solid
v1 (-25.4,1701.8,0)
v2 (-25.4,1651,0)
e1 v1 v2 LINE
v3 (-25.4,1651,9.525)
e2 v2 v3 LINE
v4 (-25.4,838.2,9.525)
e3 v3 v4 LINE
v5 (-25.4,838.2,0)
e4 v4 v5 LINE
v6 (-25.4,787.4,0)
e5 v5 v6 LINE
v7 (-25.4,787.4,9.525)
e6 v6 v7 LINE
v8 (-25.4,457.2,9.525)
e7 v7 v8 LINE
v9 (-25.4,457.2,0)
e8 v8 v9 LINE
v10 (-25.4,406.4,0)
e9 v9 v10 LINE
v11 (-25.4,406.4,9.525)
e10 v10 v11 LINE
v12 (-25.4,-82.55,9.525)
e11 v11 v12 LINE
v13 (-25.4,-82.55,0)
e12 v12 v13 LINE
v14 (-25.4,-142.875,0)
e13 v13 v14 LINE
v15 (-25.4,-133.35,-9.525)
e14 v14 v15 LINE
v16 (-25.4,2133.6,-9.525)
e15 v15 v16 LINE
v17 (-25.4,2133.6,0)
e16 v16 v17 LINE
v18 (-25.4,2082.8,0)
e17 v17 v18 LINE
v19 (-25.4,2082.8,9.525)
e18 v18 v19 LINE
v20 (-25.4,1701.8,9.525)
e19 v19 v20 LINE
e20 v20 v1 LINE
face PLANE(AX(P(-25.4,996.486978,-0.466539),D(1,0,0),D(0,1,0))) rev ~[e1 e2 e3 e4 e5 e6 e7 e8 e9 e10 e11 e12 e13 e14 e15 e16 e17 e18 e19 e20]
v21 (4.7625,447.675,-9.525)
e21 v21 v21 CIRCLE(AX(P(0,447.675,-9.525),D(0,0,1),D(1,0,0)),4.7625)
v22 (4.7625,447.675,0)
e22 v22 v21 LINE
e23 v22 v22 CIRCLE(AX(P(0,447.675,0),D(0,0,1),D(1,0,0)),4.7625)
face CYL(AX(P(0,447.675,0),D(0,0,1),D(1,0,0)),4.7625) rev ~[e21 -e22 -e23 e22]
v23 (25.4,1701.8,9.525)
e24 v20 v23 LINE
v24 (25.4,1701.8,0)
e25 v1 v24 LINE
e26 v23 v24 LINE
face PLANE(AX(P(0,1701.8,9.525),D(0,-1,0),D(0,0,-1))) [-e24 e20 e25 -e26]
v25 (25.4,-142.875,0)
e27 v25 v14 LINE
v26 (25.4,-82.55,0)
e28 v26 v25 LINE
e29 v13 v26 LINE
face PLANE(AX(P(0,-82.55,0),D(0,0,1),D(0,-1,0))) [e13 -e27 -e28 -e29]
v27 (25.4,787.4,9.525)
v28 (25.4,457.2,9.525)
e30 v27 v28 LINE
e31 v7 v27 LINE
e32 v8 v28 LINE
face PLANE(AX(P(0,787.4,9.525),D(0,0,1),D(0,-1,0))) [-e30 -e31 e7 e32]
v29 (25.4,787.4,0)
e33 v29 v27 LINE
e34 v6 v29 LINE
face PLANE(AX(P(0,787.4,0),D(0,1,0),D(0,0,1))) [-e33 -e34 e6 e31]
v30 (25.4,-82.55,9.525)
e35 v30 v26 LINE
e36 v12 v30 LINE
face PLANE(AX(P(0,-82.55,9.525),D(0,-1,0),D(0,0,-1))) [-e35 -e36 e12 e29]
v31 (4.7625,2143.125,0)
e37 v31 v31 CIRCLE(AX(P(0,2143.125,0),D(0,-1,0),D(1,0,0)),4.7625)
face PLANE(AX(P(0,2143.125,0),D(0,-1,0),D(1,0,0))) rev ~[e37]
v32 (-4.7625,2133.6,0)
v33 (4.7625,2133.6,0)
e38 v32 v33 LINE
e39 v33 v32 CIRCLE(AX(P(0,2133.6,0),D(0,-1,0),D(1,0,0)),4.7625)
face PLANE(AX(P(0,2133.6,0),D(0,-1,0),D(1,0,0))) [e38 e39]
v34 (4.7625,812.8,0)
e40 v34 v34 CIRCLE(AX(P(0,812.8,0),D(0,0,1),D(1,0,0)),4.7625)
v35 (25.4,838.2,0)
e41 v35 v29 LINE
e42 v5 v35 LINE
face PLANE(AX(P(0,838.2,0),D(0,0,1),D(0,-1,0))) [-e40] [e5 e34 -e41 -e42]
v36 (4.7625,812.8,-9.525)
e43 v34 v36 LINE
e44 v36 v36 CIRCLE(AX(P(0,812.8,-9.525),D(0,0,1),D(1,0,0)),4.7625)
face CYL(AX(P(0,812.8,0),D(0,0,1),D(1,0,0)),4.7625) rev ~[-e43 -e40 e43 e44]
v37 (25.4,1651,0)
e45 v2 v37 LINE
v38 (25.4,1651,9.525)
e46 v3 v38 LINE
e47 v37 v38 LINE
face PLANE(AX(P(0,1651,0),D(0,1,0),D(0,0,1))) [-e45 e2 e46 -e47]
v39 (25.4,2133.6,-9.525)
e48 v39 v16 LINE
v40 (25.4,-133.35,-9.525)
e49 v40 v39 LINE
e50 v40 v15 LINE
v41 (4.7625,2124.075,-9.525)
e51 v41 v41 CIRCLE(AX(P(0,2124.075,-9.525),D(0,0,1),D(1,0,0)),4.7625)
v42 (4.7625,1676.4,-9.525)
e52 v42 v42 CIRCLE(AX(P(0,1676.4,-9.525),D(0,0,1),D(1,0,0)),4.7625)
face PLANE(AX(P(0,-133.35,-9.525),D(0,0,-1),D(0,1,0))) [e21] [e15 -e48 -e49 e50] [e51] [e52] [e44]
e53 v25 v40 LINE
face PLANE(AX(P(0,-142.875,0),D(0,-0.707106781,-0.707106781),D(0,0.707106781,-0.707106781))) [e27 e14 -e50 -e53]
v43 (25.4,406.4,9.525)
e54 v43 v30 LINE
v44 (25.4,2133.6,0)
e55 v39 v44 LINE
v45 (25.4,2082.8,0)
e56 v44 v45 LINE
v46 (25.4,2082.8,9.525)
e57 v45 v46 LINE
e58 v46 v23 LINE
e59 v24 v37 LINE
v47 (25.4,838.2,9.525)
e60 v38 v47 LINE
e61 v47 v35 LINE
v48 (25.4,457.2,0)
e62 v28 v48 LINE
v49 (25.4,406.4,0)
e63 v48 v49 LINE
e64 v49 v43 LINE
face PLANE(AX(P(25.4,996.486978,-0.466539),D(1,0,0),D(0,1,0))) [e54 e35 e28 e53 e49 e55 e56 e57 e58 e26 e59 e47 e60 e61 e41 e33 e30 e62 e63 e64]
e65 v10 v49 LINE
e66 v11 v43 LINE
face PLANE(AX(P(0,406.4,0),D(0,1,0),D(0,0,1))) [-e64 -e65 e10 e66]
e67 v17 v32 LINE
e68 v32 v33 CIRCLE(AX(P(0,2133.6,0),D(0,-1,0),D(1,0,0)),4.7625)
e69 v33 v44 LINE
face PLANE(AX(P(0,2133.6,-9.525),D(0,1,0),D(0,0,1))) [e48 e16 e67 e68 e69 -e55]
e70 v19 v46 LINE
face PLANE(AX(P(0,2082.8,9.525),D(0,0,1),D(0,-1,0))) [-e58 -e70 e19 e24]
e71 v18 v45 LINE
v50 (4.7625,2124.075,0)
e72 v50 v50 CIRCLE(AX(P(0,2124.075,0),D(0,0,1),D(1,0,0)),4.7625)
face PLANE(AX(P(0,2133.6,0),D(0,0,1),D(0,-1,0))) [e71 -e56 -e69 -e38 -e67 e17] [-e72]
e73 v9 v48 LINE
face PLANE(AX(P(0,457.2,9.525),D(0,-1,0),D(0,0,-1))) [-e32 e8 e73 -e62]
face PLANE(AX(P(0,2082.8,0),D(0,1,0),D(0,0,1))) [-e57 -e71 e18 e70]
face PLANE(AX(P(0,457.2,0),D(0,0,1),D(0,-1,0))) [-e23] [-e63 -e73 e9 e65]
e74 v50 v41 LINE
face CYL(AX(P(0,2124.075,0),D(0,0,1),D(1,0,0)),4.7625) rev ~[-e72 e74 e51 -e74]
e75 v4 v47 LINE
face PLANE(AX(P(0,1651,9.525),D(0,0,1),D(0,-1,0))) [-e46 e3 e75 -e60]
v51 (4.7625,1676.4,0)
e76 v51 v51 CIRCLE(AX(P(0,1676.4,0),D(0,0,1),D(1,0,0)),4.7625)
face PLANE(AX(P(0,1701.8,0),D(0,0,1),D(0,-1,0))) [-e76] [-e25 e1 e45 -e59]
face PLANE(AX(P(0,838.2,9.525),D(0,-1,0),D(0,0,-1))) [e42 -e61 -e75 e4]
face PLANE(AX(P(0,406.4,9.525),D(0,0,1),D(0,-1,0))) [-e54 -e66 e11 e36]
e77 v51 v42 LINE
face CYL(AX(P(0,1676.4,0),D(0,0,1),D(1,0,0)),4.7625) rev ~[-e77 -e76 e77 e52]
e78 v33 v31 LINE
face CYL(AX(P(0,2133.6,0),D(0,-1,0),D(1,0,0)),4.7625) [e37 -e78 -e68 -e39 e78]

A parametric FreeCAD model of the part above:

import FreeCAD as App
import Part
import Sketcher
Q = App.Units.Quantity

doc = App.newDocument("Part")
body = doc.addObject("PartDesign::Body", "Body")

# Sketch on YZ plane
sketch1 = body.newObject("Sketcher::SketchObject", "Sketch")
sketch1.AttachmentSupport = (doc.getObject("YZ_Plane"), [""])
sketch1.MapMode = "FlatFace"
sketch1.addGeometry([
    Part.LineSegment(App.Vector(2133.6, -9.525, 0), App.Vector(2133.6, 0, 0)),  # 0
    Part.LineSegment(App.Vector(2133.6, 0, 0), App.Vector(2082.8, 0, 0)),  # 1
    Part.LineSegment(App.Vector(2082.8, 0, 0), App.Vector(2082.8, 9.525, 0)),  # 2
    Part.LineSegment(App.Vector(2082.8, 9.525, 0), App.Vector(1701.8, 9.525, 0)),  # 3
    Part.LineSegment(App.Vector(1701.8, 9.525, 0), App.Vector(1701.8, 0, 0)),  # 4
    Part.LineSegment(App.Vector(1701.8, 0, 0), App.Vector(1651, 0, 0)),  # 5
    Part.LineSegment(App.Vector(1651, 0, 0), App.Vector(1651, 9.525, 0)),  # 6
    Part.LineSegment(App.Vector(1651, 9.525, 0), App.Vector(838.2, 9.525, 0)),  # 7
    Part.LineSegment(App.Vector(838.2, 9.525, 0), App.Vector(838.2, 0, 0)),  # 8
    Part.LineSegment(App.Vector(838.2, 0, 0), App.Vector(787.4, 0, 0)),  # 9
    Part.LineSegment(App.Vector(787.4, 0, 0), App.Vector(787.4, 9.525, 0)),  # 10
    Part.LineSegment(App.Vector(787.4, 9.525, 0), App.Vector(457.2, 9.525, 0)),  # 11
    Part.LineSegment(App.Vector(457.2, 9.525, 0), App.Vector(457.2, 0, 0)),  # 12
    Part.LineSegment(App.Vector(457.2, 0, 0), App.Vector(406.4, 0, 0)),  # 13
    Part.LineSegment(App.Vector(406.4, 0, 0), App.Vector(406.4, 9.525, 0)),  # 14
    Part.LineSegment(App.Vector(406.4, 9.525, 0), App.Vector(-82.55, 9.525, 0)),  # 15
    Part.LineSegment(App.Vector(-82.55, 9.525, 0), App.Vector(-82.55, 0, 0)),  # 16
    Part.LineSegment(App.Vector(-82.55, 0, 0), App.Vector(-142.875, 0, 0)),  # 17
    Part.LineSegment(App.Vector(-142.875, 0, 0), App.Vector(-133.35, -9.525, 0)),  # 18
    Part.LineSegment(App.Vector(-133.35, -9.525, 0), App.Vector(2133.6, -9.525, 0)),  # 19
], False)
sketch1.addConstraint([
    Sketcher.Constraint("Coincident", 0, 2, 1, 1),
    Sketcher.Constraint("Coincident", 1, 2, 2, 1),
    Sketcher.Constraint("Coincident", 2, 2, 3, 1),
    Sketcher.Constraint("Coincident", 3, 2, 4, 1),
    Sketcher.Constraint("Coincident", 4, 2, 5, 1),
    Sketcher.Constraint("Coincident", 5, 2, 6, 1),
    Sketcher.Constraint("Coincident", 6, 2, 7, 1),
    Sketcher.Constraint("Coincident", 7, 2, 8, 1),
    Sketcher.Constraint("Coincident", 8, 2, 9, 1),
    Sketcher.Constraint("Coincident", 9, 2, 10, 1),
    Sketcher.Constraint("Coincident", 10, 2, 11, 1),
    Sketcher.Constraint("Coincident", 11, 2, 12, 1),
    Sketcher.Constraint("Coincident", 12, 2, 13, 1),
    Sketcher.Constraint("Coincident", 13, 2, 14, 1),
    Sketcher.Constraint("Coincident", 14, 2, 15, 1),
    Sketcher.Constraint("Coincident", 15, 2, 16, 1),
    Sketcher.Constraint("Coincident", 16, 2, 17, 1),
    Sketcher.Constraint("Coincident", 17, 2, 18, 1),
    Sketcher.Constraint("Coincident", 18, 2, 19, 1),
    Sketcher.Constraint("Coincident", 19, 2, 0, 1),
    Sketcher.Constraint("Vertical", 0),
    Sketcher.Constraint("Horizontal", 1),
    Sketcher.Constraint("Vertical", 2),
    Sketcher.Constraint("Horizontal", 3),
    Sketcher.Constraint("Vertical", 4),
    Sketcher.Constraint("Horizontal", 5),
    Sketcher.Constraint("Vertical", 6),
    Sketcher.Constraint("Horizontal", 7),
    Sketcher.Constraint("Vertical", 8),
    Sketcher.Constraint("Horizontal", 9),
    Sketcher.Constraint("Vertical", 10),
    Sketcher.Constraint("Horizontal", 11),
    Sketcher.Constraint("Vertical", 12),
    Sketcher.Constraint("Horizontal", 13),
    Sketcher.Constraint("Vertical", 14),
    Sketcher.Constraint("Horizontal", 15),
    Sketcher.Constraint("Vertical", 16),
    Sketcher.Constraint("Horizontal", 17),
    Sketcher.Constraint("Horizontal", 19),
    Sketcher.Constraint("PointOnObject", 0, 2, -1),
    Sketcher.Constraint("PointOnObject", 4, 2, -1),
    Sketcher.Constraint("PointOnObject", 8, 2, -1),
    Sketcher.Constraint("PointOnObject", 12, 2, -1),
    Sketcher.Constraint("PointOnObject", 16, 2, -1),
    Sketcher.Constraint("Horizontal", 3, 2, 6, 2),
    Sketcher.Constraint("Horizontal", 7, 2, 10, 2),
    Sketcher.Constraint("Horizontal", 11, 2, 14, 2),
    Sketcher.Constraint("Equal", 1, 5),
    Sketcher.Constraint("Equal", 5, 9),
    Sketcher.Constraint("Equal", 9, 13),
    Sketcher.Constraint("Equal", 0, 2),
    Sketcher.Constraint("DistanceX", 1, 2, 1, 1, Q("2 in")),
    Sketcher.Constraint("DistanceX", 3, 2, 3, 1, Q("15 in")),
    Sketcher.Constraint("DistanceX", 7, 2, 7, 1, Q("32 in")),
    Sketcher.Constraint("DistanceX", 11, 2, 11, 1, Q("13 in")),
    Sketcher.Constraint("DistanceX", -1, 1, 0, 2, Q("84 in")),
    Sketcher.Constraint("Angle", 18, Q("-45 deg")),
    Sketcher.Constraint("DistanceX", 18, 2, 16, 2, Q("2 in")),
    Sketcher.Constraint("DistanceX", 15, 2, 15, 1, Q("19.25 in")),
    Sketcher.Constraint("DistanceX", 17, 2, 17, 1, Q("2.375 in")),
])
pad1 = body.newObject("PartDesign::Pad", "Pad")
pad1.Profile = sketch1
pad1.Length = Q("2 in")
pad1.Midplane = True

# Sketch on XZ plane
sketch2 = body.newObject("Sketcher::SketchObject", "Sketch001")
sketch2.AttachmentSupport = (doc.getObject("XZ_Plane"), [""])
sketch2.MapMode = "FlatFace"
sketch2.AttachmentOffset = App.Placement(App.Vector(0, 0, -84 * 25.4), App.Rotation())
sketch2.addGeometry(Part.Circle(App.Vector(0, 0, 0), App.Vector(0, 0, 1), 4.7625), False)
sketch2.addConstraint([
    Sketcher.Constraint("Coincident", 0, 3, -1, 1),
    Sketcher.Constraint("Diameter", 0, Q("0.375 in")),
])
pad2 = body.newObject("PartDesign::Pad", "Pad001")
pad2.Profile = sketch2
pad2.Length = Q("0.375 in")
pad2.Reversed = True

# Sketch on XY plane
sketch3 = body.newObject("Sketcher::SketchObject", "Sketch002")
sketch3.AttachmentSupport = (doc.getObject("XY_Plane"), [""])
sketch3.MapMode = "FlatFace"
sketch3.addGeometry([
    Part.Circle(App.Vector(0, 447.675, 0), App.Vector(0, 0, 1), 4.7625),
    Part.Circle(App.Vector(0, 812.8, 0), App.Vector(0, 0, 1), 4.7625),
    Part.Circle(App.Vector(0, 1676.4, 0), App.Vector(0, 0, 1), 4.7625),
    Part.Circle(App.Vector(0, 2124.075, 0), App.Vector(0, 0, 1), 4.7625),
], False)
sketch3.addConstraint([
    Sketcher.Constraint("Equal", 0, 1),
    Sketcher.Constraint("Equal", 1, 2),
    Sketcher.Constraint("Equal", 2, 3),
    Sketcher.Constraint("PointOnObject", 0, 3, -2),
    Sketcher.Constraint("PointOnObject", 1, 3, -2),
    Sketcher.Constraint("PointOnObject", 2, 3, -2),
    Sketcher.Constraint("PointOnObject", 3, 3, -2),
    Sketcher.Constraint("Diameter", 0, Q("0.375 in")),
    Sketcher.Constraint("DistanceY", -1, 1, 1, 3, Q("32 in")),
    Sketcher.Constraint("DistanceY", -1, 1, 2, 3, Q("66 in")),
    Sketcher.Constraint("DistanceY", 0, 3, 3, 3, Q("66 in")),
    Sketcher.Constraint("DistanceY", -1, 1, 0, 3, Q("17.625 in")),
])
pocket1 = body.newObject("PartDesign::Pocket", "Pocket")
pocket1.Profile = sketch3
pocket1.Length = Q("1 in")

doc.recompute()
